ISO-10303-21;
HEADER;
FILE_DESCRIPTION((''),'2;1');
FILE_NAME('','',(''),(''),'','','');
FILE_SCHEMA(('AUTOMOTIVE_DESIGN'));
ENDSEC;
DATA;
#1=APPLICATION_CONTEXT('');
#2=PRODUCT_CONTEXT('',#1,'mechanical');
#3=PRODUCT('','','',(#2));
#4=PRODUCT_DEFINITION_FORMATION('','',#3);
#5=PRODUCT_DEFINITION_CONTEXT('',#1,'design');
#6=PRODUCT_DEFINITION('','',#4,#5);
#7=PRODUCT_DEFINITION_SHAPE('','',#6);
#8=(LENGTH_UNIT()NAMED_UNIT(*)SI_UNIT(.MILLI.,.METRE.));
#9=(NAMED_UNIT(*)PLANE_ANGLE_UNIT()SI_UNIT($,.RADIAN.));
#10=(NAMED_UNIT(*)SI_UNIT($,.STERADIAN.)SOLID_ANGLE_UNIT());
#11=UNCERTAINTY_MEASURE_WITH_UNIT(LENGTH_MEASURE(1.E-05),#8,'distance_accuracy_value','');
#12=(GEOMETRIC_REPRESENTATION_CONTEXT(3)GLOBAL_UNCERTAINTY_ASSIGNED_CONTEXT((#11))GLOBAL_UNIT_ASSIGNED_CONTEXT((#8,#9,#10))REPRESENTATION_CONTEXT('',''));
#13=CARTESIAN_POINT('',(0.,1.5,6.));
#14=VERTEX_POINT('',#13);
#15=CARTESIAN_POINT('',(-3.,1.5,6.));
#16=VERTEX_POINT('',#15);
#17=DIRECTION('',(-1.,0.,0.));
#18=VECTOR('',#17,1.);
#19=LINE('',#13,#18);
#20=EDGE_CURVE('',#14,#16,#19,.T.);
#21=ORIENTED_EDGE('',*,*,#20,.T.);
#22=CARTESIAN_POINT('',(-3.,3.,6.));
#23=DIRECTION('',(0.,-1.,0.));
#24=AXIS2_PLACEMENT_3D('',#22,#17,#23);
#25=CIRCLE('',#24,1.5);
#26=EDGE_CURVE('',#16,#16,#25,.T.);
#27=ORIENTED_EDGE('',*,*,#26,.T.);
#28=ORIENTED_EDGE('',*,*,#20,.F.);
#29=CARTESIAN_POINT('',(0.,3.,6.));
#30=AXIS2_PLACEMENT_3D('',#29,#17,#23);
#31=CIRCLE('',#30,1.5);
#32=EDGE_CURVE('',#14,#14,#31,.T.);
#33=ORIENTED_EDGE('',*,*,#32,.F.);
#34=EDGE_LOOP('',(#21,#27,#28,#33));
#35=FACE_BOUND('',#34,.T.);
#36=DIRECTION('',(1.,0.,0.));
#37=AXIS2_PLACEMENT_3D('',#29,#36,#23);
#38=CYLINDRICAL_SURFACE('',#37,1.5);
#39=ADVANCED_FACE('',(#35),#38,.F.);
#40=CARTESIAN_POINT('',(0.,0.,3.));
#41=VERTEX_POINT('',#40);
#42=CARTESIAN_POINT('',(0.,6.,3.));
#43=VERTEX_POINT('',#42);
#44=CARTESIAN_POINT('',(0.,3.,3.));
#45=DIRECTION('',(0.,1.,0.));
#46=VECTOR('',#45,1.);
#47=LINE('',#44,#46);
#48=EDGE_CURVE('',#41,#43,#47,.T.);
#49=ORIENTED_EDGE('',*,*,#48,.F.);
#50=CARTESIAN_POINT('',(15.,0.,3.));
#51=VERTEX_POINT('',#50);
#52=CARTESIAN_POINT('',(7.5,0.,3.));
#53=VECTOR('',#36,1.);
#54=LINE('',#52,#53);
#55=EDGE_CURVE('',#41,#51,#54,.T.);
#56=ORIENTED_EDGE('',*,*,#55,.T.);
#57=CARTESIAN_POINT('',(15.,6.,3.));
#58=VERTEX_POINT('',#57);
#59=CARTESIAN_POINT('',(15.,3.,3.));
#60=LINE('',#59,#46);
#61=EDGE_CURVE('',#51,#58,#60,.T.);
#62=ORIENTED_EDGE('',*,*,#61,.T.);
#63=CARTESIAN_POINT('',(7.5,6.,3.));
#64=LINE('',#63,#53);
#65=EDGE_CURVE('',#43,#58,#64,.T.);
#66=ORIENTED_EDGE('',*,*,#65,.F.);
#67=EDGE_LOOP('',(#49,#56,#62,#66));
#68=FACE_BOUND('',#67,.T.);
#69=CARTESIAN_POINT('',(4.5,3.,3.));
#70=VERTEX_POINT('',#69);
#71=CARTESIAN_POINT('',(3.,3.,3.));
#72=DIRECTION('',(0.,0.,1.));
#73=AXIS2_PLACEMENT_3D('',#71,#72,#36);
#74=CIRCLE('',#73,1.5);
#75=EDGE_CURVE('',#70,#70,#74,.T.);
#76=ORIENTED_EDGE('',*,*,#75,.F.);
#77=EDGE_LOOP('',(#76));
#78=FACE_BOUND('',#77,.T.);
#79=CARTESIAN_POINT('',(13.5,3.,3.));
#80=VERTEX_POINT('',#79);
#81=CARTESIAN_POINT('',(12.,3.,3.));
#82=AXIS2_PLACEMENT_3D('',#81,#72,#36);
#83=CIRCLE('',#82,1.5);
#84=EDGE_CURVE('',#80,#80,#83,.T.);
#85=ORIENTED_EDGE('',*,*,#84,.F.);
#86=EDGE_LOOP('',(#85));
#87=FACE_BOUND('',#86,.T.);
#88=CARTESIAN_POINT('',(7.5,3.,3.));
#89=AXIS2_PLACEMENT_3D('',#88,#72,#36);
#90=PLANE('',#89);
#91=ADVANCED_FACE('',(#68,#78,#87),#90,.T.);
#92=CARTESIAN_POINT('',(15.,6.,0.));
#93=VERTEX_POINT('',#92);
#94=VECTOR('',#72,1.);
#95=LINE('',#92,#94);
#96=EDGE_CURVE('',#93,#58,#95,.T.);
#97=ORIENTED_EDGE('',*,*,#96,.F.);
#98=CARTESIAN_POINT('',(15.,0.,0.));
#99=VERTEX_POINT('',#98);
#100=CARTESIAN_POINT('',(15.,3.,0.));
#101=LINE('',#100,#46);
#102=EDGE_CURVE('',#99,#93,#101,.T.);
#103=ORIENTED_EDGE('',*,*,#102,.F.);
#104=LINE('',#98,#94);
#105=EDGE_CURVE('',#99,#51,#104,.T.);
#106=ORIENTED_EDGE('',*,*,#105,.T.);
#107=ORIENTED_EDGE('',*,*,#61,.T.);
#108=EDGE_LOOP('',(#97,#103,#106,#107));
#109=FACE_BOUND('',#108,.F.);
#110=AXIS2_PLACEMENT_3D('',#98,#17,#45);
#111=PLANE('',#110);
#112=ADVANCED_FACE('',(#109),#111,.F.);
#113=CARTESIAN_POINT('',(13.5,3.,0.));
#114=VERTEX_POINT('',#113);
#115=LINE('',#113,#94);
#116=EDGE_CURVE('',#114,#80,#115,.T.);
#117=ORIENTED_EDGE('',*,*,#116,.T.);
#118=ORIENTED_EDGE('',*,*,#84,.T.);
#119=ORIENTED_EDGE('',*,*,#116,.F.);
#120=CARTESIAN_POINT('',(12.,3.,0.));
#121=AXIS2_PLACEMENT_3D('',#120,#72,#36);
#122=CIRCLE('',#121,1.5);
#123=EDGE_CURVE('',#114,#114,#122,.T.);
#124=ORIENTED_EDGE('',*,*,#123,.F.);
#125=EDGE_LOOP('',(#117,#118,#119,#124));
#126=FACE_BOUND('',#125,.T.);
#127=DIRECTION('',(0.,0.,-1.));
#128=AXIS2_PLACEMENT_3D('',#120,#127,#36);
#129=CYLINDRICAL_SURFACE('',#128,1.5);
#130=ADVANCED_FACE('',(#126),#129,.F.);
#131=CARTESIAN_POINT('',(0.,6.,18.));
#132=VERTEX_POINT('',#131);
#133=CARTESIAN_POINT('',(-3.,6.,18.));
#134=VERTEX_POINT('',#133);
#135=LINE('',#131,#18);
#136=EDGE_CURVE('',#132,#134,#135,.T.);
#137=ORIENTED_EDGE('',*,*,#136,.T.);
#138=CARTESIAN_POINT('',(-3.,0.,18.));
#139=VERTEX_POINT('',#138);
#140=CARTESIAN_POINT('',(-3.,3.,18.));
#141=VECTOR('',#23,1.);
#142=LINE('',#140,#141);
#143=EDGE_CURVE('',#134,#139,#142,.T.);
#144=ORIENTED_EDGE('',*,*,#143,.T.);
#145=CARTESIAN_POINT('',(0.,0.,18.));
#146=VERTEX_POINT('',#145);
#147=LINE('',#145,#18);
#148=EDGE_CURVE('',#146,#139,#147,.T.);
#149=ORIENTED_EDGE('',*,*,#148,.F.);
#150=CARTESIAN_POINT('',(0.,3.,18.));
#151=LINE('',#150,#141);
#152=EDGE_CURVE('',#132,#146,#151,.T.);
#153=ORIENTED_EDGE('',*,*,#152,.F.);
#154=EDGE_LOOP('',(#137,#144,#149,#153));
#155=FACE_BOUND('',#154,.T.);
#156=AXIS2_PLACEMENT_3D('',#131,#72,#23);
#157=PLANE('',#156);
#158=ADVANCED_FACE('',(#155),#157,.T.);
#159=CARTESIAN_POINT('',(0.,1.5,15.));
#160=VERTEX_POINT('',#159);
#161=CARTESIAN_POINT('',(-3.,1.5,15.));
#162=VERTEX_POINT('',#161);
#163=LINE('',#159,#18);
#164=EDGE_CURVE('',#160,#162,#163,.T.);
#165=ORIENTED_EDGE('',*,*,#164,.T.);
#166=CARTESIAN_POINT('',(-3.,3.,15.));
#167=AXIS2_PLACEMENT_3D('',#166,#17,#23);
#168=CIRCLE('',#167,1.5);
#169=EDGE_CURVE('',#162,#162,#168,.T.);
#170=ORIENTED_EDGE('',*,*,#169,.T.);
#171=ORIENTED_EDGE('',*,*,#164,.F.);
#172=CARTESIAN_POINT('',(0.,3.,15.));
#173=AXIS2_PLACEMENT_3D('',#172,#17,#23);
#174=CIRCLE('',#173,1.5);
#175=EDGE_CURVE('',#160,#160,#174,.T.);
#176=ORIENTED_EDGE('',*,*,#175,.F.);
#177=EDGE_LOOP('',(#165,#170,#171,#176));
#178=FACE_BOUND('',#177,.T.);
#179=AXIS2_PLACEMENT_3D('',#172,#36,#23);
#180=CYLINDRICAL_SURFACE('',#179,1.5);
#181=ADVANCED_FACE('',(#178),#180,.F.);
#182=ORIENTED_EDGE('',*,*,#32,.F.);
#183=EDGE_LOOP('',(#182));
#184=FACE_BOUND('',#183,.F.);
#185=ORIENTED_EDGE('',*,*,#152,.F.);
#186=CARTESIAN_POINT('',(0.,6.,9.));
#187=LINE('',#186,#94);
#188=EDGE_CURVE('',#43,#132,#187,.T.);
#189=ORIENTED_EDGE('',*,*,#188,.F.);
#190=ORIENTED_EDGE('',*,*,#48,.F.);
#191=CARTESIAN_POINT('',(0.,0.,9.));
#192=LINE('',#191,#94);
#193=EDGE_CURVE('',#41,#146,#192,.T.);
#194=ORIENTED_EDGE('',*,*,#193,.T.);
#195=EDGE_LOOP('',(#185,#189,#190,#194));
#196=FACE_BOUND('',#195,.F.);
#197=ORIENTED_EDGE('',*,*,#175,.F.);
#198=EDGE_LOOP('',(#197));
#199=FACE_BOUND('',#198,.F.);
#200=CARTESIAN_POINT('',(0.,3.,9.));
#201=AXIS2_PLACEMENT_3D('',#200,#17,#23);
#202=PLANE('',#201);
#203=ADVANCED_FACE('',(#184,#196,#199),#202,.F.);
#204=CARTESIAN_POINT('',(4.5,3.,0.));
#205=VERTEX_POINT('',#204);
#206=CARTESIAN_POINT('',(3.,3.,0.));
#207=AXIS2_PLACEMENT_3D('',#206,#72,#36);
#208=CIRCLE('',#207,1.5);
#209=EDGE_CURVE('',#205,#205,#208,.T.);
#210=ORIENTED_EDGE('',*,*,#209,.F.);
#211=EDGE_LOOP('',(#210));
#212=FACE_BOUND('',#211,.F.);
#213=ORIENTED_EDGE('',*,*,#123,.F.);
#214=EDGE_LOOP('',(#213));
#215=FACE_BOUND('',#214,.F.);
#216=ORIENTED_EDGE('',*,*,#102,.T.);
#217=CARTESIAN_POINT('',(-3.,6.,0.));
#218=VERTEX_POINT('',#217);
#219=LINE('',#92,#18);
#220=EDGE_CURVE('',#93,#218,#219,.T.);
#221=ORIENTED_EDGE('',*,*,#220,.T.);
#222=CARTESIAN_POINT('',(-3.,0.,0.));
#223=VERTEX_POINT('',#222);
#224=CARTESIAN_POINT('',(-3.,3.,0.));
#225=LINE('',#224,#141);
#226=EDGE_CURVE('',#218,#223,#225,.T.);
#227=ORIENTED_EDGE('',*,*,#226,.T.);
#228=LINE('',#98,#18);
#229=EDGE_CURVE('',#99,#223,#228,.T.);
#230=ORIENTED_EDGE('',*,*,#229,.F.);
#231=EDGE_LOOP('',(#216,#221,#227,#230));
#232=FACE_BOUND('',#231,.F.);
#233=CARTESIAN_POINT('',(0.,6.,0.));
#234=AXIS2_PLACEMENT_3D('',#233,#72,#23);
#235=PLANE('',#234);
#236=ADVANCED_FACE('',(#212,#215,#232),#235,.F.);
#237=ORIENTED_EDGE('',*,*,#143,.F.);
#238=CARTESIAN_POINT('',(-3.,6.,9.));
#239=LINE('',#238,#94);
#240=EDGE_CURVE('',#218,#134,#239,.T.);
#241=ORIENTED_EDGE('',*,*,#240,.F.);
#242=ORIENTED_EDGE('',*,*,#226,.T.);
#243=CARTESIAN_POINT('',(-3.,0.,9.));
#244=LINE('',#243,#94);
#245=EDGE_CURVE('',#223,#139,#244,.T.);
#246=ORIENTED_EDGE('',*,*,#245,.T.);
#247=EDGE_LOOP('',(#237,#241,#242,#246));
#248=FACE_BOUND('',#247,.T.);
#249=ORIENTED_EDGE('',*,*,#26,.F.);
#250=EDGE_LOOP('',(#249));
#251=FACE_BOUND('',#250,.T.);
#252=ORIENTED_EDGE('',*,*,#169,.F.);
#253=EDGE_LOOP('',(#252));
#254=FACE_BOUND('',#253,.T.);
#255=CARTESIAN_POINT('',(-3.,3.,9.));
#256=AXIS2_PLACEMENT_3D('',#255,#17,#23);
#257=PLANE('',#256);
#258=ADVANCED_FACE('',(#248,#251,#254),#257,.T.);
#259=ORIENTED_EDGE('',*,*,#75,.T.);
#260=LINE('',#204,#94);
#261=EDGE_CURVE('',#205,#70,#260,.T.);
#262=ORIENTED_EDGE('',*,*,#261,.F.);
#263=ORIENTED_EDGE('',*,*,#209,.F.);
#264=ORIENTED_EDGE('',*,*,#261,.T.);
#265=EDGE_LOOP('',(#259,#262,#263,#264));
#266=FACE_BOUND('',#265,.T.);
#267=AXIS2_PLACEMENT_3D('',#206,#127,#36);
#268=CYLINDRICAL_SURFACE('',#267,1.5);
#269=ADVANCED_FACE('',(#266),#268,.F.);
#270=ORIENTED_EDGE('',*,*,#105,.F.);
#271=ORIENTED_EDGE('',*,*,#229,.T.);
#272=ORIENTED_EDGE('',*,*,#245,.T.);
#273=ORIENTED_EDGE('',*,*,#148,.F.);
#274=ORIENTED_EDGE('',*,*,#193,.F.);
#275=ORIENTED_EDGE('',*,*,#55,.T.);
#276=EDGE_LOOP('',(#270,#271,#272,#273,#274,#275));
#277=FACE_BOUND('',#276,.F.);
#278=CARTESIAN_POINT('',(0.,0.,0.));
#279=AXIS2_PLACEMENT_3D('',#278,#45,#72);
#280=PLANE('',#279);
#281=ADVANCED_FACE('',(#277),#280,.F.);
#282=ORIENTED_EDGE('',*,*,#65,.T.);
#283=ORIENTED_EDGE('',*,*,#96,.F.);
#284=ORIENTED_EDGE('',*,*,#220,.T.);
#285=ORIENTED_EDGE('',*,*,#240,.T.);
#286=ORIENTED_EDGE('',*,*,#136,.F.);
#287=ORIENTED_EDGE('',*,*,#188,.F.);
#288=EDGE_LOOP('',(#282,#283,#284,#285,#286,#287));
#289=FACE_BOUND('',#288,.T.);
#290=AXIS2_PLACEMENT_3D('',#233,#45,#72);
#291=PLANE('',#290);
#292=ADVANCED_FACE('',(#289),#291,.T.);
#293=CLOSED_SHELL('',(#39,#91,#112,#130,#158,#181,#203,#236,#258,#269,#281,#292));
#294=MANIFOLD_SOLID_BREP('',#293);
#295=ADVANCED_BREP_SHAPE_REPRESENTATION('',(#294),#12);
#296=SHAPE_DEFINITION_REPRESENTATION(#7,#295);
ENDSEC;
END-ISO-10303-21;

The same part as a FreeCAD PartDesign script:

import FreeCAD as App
import Part
import Sketcher

V = App.Vector
Q = App.Units.Quantity


def add_polygon(sketch, points):
    """Adds a closed chain of lines whose ends are joined by coincident constraints."""
    first, n = sketch.GeometryCount, len(points)
    for a, b in zip(points, points[1:] + points[:1]):
        sketch.addGeometry(Part.LineSegment(App.Vector(*a, 0), App.Vector(*b, 0)), False)
    for i in range(n):
        sketch.addConstraint(Sketcher.Constraint("Coincident", first + i, 2, first + (i + 1) % n, 1))

doc = App.newDocument("Part")
body = doc.addObject("PartDesign::Body", "Body")

# Sketch on XY plane
sketch1 = doc.addObject("Sketcher::SketchObject", "Sketch")
body.addObject(sketch1)
sketch1.AttachmentSupport = (doc.XY_Plane, [""])
sketch1.MapMode = "FlatFace"
add_polygon(sketch1, [(0, 6), (0, 0), (15, 0), (15, 6)])  # lines 0-3
sketch1.addGeometry(Part.Circle(V(3, 3, 0), V(0, 0, 1), 1.5), False)  # 4
sketch1.addGeometry(Part.Circle(V(12, 3, 0), V(0, 0, 1), 1.5), False)  # 5
sketch1.addConstraint(Sketcher.Constraint("Vertical", 0))
sketch1.addConstraint(Sketcher.Constraint("Horizontal", 1))
sketch1.addConstraint(Sketcher.Constraint("Vertical", 2))
sketch1.addConstraint(Sketcher.Constraint("Horizontal", 3))
sketch1.addConstraint(Sketcher.Constraint("Coincident", 0, 2, -1, 1))
sketch1.addConstraint(Sketcher.Constraint("Equal", 4, 5))
sketch1.addConstraint(Sketcher.Constraint("Horizontal", 4, 3, 5, 3))
sketch1.addConstraint(Sketcher.Constraint("Diameter", 4, Q("3 mm")))
sketch1.addConstraint(Sketcher.Constraint("DistanceX", 1, 1, 1, 2, Q("15 mm")))
sketch1.addConstraint(Sketcher.Constraint("DistanceY", 0, 2, 0, 1, Q("6 mm")))
sketch1.addConstraint(Sketcher.Constraint("DistanceX", -1, 1, 4, 3, Q("3 mm")))
sketch1.addConstraint(Sketcher.Constraint("DistanceY", -1, 1, 4, 3, Q("3 mm")))
sketch1.addConstraint(Sketcher.Constraint("DistanceX", -1, 1, 5, 3, Q("12 mm")))
pad1 = doc.addObject("PartDesign::Pad", "Pad")
body.addObject(pad1)
pad1.Profile = sketch1
pad1.Length = 3

# Sketch on YZ plane
sketch2 = doc.addObject("Sketcher::SketchObject", "Sketch001")
body.addObject(sketch2)
sketch2.AttachmentSupport = (doc.YZ_Plane, [""])
sketch2.MapMode = "FlatFace"
add_polygon(sketch2, [(6, 18), (6, 0), (0, 0), (0, 18)])  # lines 0-3
sketch2.addGeometry(Part.Circle(V(3, 6, 0), V(0, 0, 1), 1.5), False)  # 4
sketch2.addGeometry(Part.Circle(V(3, 15, 0), V(0, 0, 1), 1.5), False)  # 5
sketch2.addConstraint(Sketcher.Constraint("Vertical", 0))
sketch2.addConstraint(Sketcher.Constraint("Horizontal", 1))
sketch2.addConstraint(Sketcher.Constraint("Vertical", 2))
sketch2.addConstraint(Sketcher.Constraint("Horizontal", 3))
sketch2.addConstraint(Sketcher.Constraint("Coincident", 1, 2, -1, 1))
sketch2.addConstraint(Sketcher.Constraint("Equal", 4, 5))
sketch2.addConstraint(Sketcher.Constraint("Vertical", 4, 3, 5, 3))
sketch2.addConstraint(Sketcher.Constraint("Diameter", 4, Q("3 mm")))
sketch2.addConstraint(Sketcher.Constraint("DistanceX", 1, 2, 1, 1, Q("6 mm")))
sketch2.addConstraint(Sketcher.Constraint("DistanceY", 0, 2, 0, 1, Q("18 mm")))
sketch2.addConstraint(Sketcher.Constraint("DistanceX", -1, 1, 4, 3, Q("3 mm")))
sketch2.addConstraint(Sketcher.Constraint("DistanceY", -1, 1, 4, 3, Q("6 mm")))
sketch2.addConstraint(Sketcher.Constraint("DistanceY", -1, 1, 5, 3, Q("15 mm")))
pad2 = doc.addObject("PartDesign::Pad", "Pad001")
body.addObject(pad2)
pad2.Profile = sketch2
pad2.Length = 3
pad2.Reversed = True

doc.recompute()
